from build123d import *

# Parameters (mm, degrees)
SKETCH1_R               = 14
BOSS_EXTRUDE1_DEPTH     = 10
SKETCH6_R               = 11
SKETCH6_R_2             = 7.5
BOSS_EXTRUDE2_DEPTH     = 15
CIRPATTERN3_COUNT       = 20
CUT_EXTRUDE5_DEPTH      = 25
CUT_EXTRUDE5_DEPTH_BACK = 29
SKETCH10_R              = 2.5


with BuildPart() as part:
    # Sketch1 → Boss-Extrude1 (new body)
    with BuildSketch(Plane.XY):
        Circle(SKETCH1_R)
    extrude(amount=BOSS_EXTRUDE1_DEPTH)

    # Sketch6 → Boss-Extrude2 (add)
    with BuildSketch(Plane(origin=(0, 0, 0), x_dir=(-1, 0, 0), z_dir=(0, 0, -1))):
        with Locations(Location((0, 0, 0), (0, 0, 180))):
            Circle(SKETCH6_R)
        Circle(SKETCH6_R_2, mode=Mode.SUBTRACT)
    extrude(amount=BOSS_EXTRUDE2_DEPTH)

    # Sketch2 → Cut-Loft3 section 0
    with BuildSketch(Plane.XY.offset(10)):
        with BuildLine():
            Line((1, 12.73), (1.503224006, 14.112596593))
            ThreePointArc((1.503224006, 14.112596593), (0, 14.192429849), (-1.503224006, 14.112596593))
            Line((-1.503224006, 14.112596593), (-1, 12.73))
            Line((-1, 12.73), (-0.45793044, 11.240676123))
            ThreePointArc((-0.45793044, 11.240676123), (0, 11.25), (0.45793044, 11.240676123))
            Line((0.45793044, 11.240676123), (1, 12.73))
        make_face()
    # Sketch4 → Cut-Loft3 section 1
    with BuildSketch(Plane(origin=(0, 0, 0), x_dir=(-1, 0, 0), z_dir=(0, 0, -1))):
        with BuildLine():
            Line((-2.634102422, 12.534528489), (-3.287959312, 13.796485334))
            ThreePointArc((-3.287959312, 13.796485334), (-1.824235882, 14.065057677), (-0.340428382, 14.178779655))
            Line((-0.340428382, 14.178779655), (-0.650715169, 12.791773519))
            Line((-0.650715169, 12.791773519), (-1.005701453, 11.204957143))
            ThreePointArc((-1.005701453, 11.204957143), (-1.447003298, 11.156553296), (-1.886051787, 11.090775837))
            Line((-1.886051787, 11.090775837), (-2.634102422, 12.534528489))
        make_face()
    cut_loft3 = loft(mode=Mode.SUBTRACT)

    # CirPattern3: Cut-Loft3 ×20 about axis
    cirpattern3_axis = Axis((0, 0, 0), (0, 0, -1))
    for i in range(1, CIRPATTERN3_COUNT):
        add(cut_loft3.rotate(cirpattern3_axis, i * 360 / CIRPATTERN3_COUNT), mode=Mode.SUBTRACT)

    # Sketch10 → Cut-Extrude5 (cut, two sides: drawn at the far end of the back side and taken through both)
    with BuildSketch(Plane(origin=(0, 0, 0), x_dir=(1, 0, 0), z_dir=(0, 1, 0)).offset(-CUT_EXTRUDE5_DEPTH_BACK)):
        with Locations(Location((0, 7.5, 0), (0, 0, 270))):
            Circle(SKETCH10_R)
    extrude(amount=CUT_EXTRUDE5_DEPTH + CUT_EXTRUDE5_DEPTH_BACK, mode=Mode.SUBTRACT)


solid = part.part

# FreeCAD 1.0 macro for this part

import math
import FreeCAD as App
import Part
import Sketcher
from FreeCAD import Vector
Q = App.Units.Quantity

doc = App.newDocument("Part")
body = doc.addObject("PartDesign::Body", "Body")

sketch1 = doc.addObject("Sketcher::SketchObject", "Sketch")
body.addObject(sketch1)
sketch1.AttachmentSupport = (doc.XY_Plane, [""])
sketch1.MapMode = "FlatFace"
sketch1.addGeometry(Part.Circle(Vector(0, 0, 0), Vector(0, 0, 1), 14), False)
sketch1.addConstraint([
    Sketcher.Constraint("Coincident", 0, 3, -1, 1),
    Sketcher.Constraint("Diameter", 0, 28.0),
])
pad1 = doc.addObject("PartDesign::Pad", "Pad")
body.addObject(pad1)
pad1.Profile = sketch1
pad1.Length = 10

sketch2 = doc.addObject("Sketcher::SketchObject", "Sketch001")
body.addObject(sketch2)
sketch2.AttachmentSupport = (doc.XY_Plane, [""])
sketch2.MapMode = "FlatFace"
sketch2.addGeometry([
    Part.Circle(Vector(0, 0, 0), Vector(0, 0, 1), 11),
    Part.Circle(Vector(0, 0, 0), Vector(0, 0, 1), 7.5),
], False)
sketch2.addConstraint([
    Sketcher.Constraint("Coincident", 0, 3, -1, 1),
    Sketcher.Constraint("Coincident", 1, 3, -1, 1),
    Sketcher.Constraint("Diameter", 0, 22.0),
    Sketcher.Constraint("Diameter", 1, 15.0),
])
pad2 = doc.addObject("PartDesign::Pad", "Pad001")
body.addObject(pad2)
pad2.Profile = sketch2
pad2.Length = 15
pad2.Reversed = True

sketch3 = doc.addObject("Sketcher::SketchObject", "Sketch002")
body.addObject(sketch3)
sketch3.AttachmentSupport = (doc.XY_Plane, [""])
sketch3.MapMode = "FlatFace"
sketch3.AttachmentOffset = App.Placement(Vector(0, 0, 10), App.Rotation())
sketch3.addGeometry([
    Part.LineSegment(Vector(1, 12.73, 0), Vector(1.503224, 14.112597, 0)),
    Part.ArcOfCircle(Part.Circle(Vector(0, 0, 0), Vector(0, 0, 1), 14.19243), math.radians(83.919981), math.radians(96.080019)),
    Part.LineSegment(Vector(-1.503224, 14.112597, 0), Vector(-1, 12.73, 0)),
    Part.LineSegment(Vector(-1, 12.73, 0), Vector(-0.45793, 11.240676, 0)),
    Part.ArcOfCircle(Part.Circle(Vector(0, 0.000001, 0), Vector(0, 0, 1), 11.249999), math.radians(87.667135), math.radians(92.332865)),
    Part.LineSegment(Vector(0.45793, 11.240676, 0), Vector(1, 12.73, 0)),
], False)
sketch3.addConstraint([
    Sketcher.Constraint("Coincident", 0, 2, 1, 1),
    Sketcher.Constraint("Coincident", 1, 2, 2, 1),
    Sketcher.Constraint("Coincident", 2, 2, 3, 1),
    Sketcher.Constraint("Coincident", 3, 2, 4, 2),
    Sketcher.Constraint("Coincident", 4, 1, 5, 1),
    Sketcher.Constraint("Coincident", 5, 2, 0, 1),
    Sketcher.Constraint("Coincident", 1, 3, -1, 1),
    Sketcher.Constraint("Coincident", 4, 3, -1, 1),
    Sketcher.Constraint("Symmetric", 2, 2, 5, 2, -2),
    Sketcher.Constraint("Parallel", 2, 3),
    Sketcher.Constraint("Parallel", 0, 5),
    Sketcher.Constraint("Horizontal", 0, 2, 1, 2),
    Sketcher.Constraint("Angle", 0, Q("70 deg")),
    Sketcher.Constraint("Radius", 4, 11.249999),
    Sketcher.Constraint("DistanceX", 2, 2, -1, 1, 1.0),
    Sketcher.Constraint("DistanceY", -1, 1, 2, 2, 12.73),
    Sketcher.Constraint("Radius", 1, 14.19243),
])

sketch4 = doc.addObject("Sketcher::SketchObject", "Sketch003")
body.addObject(sketch4)
sketch4.AttachmentSupport = (doc.XY_Plane, [""])
sketch4.MapMode = "FlatFace"
sketch4.addGeometry([
    Part.LineSegment(Vector(3.287959, 13.796485, 0), Vector(2.634102, 12.534528, 0)),
    Part.LineSegment(Vector(2.634102, 12.534528, 0), Vector(1.886052, 11.090776, 0)),
    Part.ArcOfCircle(Part.Circle(Vector(0, 0, 0), Vector(0, 0, 1), 11.25), math.radians(80.348842), math.radians(84.871158)),
    Part.LineSegment(Vector(1.005701, 11.204957, 0), Vector(0.650715, 12.791774, 0)),
    Part.LineSegment(Vector(0.650715, 12.791774, 0), Vector(0.340428, 14.17878, 0)),
    Part.ArcOfCircle(Part.Circle(Vector(0, 0, 0), Vector(0, 0, 1), 14.182866), math.radians(76.595391), math.radians(88.624609)),
], False)
sketch4.addConstraint([
    Sketcher.Constraint("Coincident", 0, 2, 1, 1),
    Sketcher.Constraint("Coincident", 1, 2, 2, 1),
    Sketcher.Constraint("Coincident", 2, 2, 3, 1),
    Sketcher.Constraint("Coincident", 3, 2, 4, 1),
    Sketcher.Constraint("Coincident", 4, 2, 5, 2),
    Sketcher.Constraint("Coincident", 5, 1, 0, 1),
    Sketcher.Constraint("Coincident", 2, 3, -1, 1),
    Sketcher.Constraint("Coincident", 5, 3, -1, 1),
    Sketcher.Constraint("Parallel", 0, 1),
    Sketcher.Constraint("Parallel", 3, 4),
    Sketcher.Constraint("Equal", 1, 3),
    Sketcher.Constraint("Equal", 0, 4),
    Sketcher.Constraint("Radius", 2, 11.25),
    Sketcher.Constraint("Angle", 0, Q("-117.39 deg")),
    Sketcher.Constraint("Angle", 3, Q("102.61 deg")),
    Sketcher.Constraint("Radius", 5, 14.182866),
    Sketcher.Constraint("DistanceX", -1, 1, 2, 2, 1.005701),
    Sketcher.Constraint("DistanceX", 2, 2, 0, 2, 1.628401),
])

subtractiveloft = doc.addObject("PartDesign::SubtractiveLoft", "SubtractiveLoft")
body.addObject(subtractiveloft)
subtractiveloft.Profile = sketch3
subtractiveloft.Sections = [sketch4]
doc.recompute()

polarpattern = doc.addObject("PartDesign::PolarPattern", "PolarPattern")
body.addObject(polarpattern)
polarpattern.Originals = [subtractiveloft]
polarpattern.Axis = (doc.Z_Axis, [""])
polarpattern.Angle = 360
polarpattern.Occurrences = 20
body.Tip = polarpattern

sketch5 = doc.addObject("Sketcher::SketchObject", "Sketch004")
body.addObject(sketch5)
sketch5.AttachmentSupport = (doc.XZ_Plane, [""])
sketch5.MapMode = "FlatFace"
sketch5.addGeometry(Part.Circle(Vector(0, -7.5, 0), Vector(0, 0, 1), 2.5), False)
sketch5.addConstraint([
    Sketcher.Constraint("PointOnObject", 0, 3, -2),
    Sketcher.Constraint("Diameter", 0, 5.0),
    Sketcher.Constraint("DistanceY", 0, 3, -1, 1, 7.5),
])
pocket1 = doc.addObject("PartDesign::Pocket", "Pocket")
body.addObject(pocket1)
pocket1.Profile = sketch5
pocket1.Type = "ThroughAll"
pocket1.Midplane = True

doc.recompute()
